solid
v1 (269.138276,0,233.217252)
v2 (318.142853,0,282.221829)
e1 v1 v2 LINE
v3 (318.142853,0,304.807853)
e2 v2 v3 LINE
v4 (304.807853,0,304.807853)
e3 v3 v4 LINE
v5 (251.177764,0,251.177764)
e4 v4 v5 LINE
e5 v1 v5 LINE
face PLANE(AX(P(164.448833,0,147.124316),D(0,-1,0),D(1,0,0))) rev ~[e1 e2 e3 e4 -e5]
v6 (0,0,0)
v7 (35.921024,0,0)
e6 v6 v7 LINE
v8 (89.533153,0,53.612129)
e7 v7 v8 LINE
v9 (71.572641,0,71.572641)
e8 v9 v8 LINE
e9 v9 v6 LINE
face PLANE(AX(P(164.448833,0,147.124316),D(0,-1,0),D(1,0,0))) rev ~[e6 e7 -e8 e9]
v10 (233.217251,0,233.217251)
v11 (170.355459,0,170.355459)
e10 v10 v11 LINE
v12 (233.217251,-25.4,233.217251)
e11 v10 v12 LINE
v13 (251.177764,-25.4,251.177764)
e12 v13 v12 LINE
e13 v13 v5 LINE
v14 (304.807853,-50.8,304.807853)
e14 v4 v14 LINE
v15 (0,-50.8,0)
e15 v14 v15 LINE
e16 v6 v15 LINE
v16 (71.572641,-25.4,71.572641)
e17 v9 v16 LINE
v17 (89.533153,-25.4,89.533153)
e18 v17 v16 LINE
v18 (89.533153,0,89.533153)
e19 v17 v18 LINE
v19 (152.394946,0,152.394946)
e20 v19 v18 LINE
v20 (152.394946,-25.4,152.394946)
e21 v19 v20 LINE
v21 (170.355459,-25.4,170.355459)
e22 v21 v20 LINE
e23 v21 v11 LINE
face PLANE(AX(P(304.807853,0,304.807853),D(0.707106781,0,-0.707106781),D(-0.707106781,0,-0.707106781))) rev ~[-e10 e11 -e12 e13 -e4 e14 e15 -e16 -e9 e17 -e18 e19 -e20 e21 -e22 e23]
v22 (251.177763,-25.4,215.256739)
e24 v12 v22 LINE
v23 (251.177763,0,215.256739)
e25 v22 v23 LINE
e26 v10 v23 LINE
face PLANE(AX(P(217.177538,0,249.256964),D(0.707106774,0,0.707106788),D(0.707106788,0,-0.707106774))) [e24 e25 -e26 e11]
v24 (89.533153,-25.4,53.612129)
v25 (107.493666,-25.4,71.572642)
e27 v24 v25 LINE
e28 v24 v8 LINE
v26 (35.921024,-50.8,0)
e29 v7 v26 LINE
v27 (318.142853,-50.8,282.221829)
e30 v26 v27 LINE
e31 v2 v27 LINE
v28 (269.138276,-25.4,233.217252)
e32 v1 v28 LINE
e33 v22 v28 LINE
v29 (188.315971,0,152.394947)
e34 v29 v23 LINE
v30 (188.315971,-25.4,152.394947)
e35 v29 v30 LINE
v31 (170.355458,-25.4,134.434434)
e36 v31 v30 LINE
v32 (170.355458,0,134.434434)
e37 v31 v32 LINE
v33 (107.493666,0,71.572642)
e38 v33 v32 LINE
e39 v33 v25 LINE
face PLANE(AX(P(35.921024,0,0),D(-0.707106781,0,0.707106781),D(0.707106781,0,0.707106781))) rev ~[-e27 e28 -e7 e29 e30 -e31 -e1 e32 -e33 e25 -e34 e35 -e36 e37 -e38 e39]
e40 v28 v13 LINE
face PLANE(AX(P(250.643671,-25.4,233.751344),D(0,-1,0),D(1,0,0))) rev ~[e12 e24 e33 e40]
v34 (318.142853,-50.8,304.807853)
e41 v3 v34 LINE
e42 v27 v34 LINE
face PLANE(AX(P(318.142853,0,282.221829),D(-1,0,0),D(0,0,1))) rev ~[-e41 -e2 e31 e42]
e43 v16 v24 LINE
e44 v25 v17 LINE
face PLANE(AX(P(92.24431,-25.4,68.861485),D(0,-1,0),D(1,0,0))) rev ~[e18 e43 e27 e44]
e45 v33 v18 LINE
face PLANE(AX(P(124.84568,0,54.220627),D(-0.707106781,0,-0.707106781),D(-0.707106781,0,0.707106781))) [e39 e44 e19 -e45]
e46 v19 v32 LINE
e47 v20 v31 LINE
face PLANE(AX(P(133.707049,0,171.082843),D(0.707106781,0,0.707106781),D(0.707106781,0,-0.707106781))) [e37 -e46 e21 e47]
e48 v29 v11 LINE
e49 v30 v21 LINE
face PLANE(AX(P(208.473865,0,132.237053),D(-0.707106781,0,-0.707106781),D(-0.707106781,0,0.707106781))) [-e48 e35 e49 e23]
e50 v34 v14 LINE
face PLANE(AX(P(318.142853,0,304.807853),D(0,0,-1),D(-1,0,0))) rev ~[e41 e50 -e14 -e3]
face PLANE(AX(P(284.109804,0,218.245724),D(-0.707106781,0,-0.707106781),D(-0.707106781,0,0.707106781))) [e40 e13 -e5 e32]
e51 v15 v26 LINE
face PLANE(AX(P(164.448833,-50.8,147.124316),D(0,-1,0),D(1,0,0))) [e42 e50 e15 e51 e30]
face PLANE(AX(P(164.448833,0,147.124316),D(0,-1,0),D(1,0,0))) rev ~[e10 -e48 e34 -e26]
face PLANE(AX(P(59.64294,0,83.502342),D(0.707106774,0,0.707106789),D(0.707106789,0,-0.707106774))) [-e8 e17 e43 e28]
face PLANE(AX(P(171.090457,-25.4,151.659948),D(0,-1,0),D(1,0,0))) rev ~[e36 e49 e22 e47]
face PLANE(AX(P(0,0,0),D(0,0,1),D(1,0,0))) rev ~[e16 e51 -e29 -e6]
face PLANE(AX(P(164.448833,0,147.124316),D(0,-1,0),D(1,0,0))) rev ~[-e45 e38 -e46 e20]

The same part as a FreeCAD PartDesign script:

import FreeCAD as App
import Part
import Sketcher
from FreeCAD import Vector
Q = App.Units.Quantity


def add_polygon(sketch, points):
    """Adds a closed chain of lines whose ends are joined by coincident constraints."""
    first, n = sketch.GeometryCount, len(points)
    for a, b in zip(points, points[1:] + points[:1]):
        sketch.addGeometry(Part.LineSegment(App.Vector(*a, 0), App.Vector(*b, 0)), False)
    for i in range(n):
        sketch.addConstraint(Sketcher.Constraint("Coincident", first + i, 2, first + (i + 1) % n, 1))

doc = App.newDocument("Part")
body = doc.addObject("PartDesign::Body", "Body")

sketch1 = body.newObject("Sketcher::SketchObject", "Sketch")
sketch1.AttachmentSupport = (doc.getObject("XZ_Plane"), [""])
sketch1.MapMode = "FlatFace"
add_polygon(sketch1, [(305, 305), (0, 0), (36, 0), (318, 282), (318, 305)])
sketch1.addConstraint([
    Sketcher.Constraint("Horizontal", 1),
    Sketcher.Constraint("Vertical", 3),
    Sketcher.Constraint("Horizontal", 4),
    Sketcher.Constraint("Coincident", 0, 2, -1, 1),
    Sketcher.Constraint("Parallel", 0, 2),
    Sketcher.Constraint("Angle", 0, Q("-135 deg")),
    Sketcher.Constraint("DistanceX", 4, 2, 4, 1, Q("0.525 in")),
    Sketcher.Constraint("Distance", 0, Q("16.971 in")),
    Sketcher.Constraint("Distance", 2, Q("399.121938 mm")),
])
pad1 = body.newObject("PartDesign::Pad", "Pad")
pad1.Profile = sketch1
pad1.Length = Q("2 in")

sketch2 = body.newObject("Sketcher::SketchObject", "Sketch001")
sketch2.AttachmentSupport = (doc.getObject("XZ_Plane"), [""])
sketch2.MapMode = "FlatFace"
add_polygon(sketch2, [(235, 267), (217, 249), (266, 200), (284, 218)])
add_polygon(sketch2, [(78, 101), (60, 84), (107, 36), (125, 54)])
add_polygon(sketch2, [(152, 189), (134, 171), (191, 114), (208, 132)])
sketch2.addConstraint([
    Sketcher.Constraint("Perpendicular", 0, 1),
    Sketcher.Constraint("Perpendicular", 1, 2),
    Sketcher.Constraint("Perpendicular", 2, 3),
    Sketcher.Constraint("Perpendicular", 3, 4),
    Sketcher.Constraint("Perpendicular", 4, 5),
    Sketcher.Constraint("Perpendicular", 5, 6),
    Sketcher.Constraint("Perpendicular", 6, 7),
    Sketcher.Constraint("Perpendicular", 7, 8),
    Sketcher.Constraint("Perpendicular", 8, 9),
    Sketcher.Constraint("Perpendicular", 9, 10),
    Sketcher.Constraint("Perpendicular", 10, 11),
    Sketcher.Constraint("Equal", 2, 4),
    Sketcher.Constraint("Equal", 6, 8),
    Sketcher.Constraint("Distance", 0, Q("1 in")),
    Sketcher.Constraint("Angle", 0, Q("-135 deg")),
    Sketcher.Constraint("Distance", 5, Q("66.810599 mm")),
    Sketcher.Constraint("DistanceY", 4, 2, 8, 2, Q("87.580501 mm")),
    Sketcher.Constraint("DistanceX", 7, 2, 9, 2, Q("112.9099 mm")),
    Sketcher.Constraint("DistanceX", -1, 1, 0, 2, Q("217.177538 mm")),
    Sketcher.Constraint("DistanceX", -1, 1, 1, 2, Q("266.149292 mm")),
    Sketcher.Constraint("DistanceY", -1, 1, 1, 2, Q("200.285211 mm")),
    Sketcher.Constraint("DistanceX", -1, 1, 4, 2, Q("59.64294 mm")),
    Sketcher.Constraint("DistanceY", -1, 1, 4, 2, Q("83.502342 mm")),
    Sketcher.Constraint("DistanceX", -1, 1, 8, 2, Q("133.707049 mm")),
])
pocket1 = body.newObject("PartDesign::Pocket", "Pocket")
pocket1.Profile = sketch2
pocket1.Length = Q("1 in")
pocket1.Reversed = True

doc.recompute()
